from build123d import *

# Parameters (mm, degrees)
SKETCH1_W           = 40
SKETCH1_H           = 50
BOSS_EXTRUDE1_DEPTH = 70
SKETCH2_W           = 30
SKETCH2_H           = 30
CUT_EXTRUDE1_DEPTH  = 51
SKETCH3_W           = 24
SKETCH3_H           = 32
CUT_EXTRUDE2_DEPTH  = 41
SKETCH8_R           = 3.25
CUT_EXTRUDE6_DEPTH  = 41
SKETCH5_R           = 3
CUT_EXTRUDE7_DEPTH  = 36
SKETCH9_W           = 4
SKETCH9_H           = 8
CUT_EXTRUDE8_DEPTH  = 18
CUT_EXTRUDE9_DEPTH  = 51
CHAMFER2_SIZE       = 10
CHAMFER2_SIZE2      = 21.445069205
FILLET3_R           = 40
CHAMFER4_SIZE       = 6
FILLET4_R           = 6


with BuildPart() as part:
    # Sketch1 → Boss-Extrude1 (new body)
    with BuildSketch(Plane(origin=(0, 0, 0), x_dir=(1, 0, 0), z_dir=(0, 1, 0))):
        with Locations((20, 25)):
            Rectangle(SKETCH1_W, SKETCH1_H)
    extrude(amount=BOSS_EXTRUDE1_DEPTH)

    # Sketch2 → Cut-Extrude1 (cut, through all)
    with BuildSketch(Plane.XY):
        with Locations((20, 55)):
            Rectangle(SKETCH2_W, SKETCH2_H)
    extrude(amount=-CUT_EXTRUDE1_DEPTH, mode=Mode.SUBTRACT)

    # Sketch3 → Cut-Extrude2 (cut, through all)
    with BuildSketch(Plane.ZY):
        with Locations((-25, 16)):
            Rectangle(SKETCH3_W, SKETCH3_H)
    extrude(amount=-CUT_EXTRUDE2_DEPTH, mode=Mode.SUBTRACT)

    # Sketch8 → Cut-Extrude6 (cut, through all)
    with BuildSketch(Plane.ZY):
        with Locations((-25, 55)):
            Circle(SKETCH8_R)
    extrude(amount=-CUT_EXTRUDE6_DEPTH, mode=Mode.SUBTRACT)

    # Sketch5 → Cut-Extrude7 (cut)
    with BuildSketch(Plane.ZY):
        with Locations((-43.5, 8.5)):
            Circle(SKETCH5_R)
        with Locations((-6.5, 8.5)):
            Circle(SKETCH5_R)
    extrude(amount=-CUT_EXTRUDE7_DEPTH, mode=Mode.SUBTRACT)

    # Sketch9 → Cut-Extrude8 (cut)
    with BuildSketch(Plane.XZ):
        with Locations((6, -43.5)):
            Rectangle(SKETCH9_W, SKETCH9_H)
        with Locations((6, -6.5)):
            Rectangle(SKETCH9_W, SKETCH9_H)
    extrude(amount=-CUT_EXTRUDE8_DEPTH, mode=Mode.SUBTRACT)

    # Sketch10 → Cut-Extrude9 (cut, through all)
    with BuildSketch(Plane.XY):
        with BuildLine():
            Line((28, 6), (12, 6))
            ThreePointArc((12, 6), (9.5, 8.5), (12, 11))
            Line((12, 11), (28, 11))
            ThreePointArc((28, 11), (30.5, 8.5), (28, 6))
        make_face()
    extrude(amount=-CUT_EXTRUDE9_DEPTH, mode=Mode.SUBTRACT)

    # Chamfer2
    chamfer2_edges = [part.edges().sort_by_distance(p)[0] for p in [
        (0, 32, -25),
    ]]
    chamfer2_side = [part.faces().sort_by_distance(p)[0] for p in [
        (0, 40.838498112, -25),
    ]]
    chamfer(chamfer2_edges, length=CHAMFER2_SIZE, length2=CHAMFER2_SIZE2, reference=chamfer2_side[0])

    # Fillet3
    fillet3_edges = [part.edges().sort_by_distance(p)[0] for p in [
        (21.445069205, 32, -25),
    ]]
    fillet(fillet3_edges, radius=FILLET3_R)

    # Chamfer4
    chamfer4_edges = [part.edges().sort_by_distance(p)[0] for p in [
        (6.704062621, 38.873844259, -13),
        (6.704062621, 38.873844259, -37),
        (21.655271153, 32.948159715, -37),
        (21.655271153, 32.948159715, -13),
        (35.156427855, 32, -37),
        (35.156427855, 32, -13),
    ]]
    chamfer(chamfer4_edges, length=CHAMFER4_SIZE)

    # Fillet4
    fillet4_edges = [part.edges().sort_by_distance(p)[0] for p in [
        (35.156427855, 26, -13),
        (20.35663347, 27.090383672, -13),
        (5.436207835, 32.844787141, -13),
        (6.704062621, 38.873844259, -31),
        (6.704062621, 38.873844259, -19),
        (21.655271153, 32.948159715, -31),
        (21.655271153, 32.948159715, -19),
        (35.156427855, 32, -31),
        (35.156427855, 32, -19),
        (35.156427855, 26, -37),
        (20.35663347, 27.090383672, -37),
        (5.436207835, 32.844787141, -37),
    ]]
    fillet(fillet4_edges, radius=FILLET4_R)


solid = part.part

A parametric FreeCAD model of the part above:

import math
import FreeCAD as App
import Part
import Sketcher

V = App.Vector
Q = App.Units.Quantity


def edges_at(feature, points):
    """Names of the edges that pass closest to the given points."""
    edges = feature.Shape.Edges
    near = lambda p: min(range(len(edges)), key=lambda i: edges[i].distToShape(Part.Vertex(*p))[0])
    return sorted({f"Edge{near(p) + 1}" for p in points})

doc = App.newDocument("Part")
body = doc.addObject("PartDesign::Body", "Body")

# Sketch on XZ plane
sketch1 = doc.addObject("Sketcher::SketchObject", "Sketch")
body.addObject(sketch1)
sketch1.AttachmentSupport = (doc.XZ_Plane, [""])
sketch1.MapMode = "FlatFace"
sketch1.addGeometry(Part.LineSegment(V(0, -50, 0), V(0, 0, 0)), False)
sketch1.addGeometry(Part.LineSegment(V(0, 0, 0), V(40, 0, 0)), False)
sketch1.addGeometry(Part.LineSegment(V(40, 0, 0), V(40, -50, 0)), False)
sketch1.addGeometry(Part.LineSegment(V(40, -50, 0), V(0, -50, 0)), False)
sketch1.addConstraint(Sketcher.Constraint("Coincident", 0, 2, 1, 1))
sketch1.addConstraint(Sketcher.Constraint("Coincident", 1, 2, 2, 1))
sketch1.addConstraint(Sketcher.Constraint("Coincident", 2, 2, 3, 1))
sketch1.addConstraint(Sketcher.Constraint("Coincident", 3, 2, 0, 1))
sketch1.addConstraint(Sketcher.Constraint("Vertical", 0))
sketch1.addConstraint(Sketcher.Constraint("Horizontal", 1))
sketch1.addConstraint(Sketcher.Constraint("Vertical", 2))
sketch1.addConstraint(Sketcher.Constraint("Horizontal", 3))
sketch1.addConstraint(Sketcher.Constraint("Coincident", 0, 2, -1, 1))
sketch1.addConstraint(Sketcher.Constraint("DistanceX", 1, 1, 1, 2, Q("40 mm")))
sketch1.addConstraint(Sketcher.Constraint("DistanceY", 0, 1, 0, 2, Q("50 mm")))
pad1 = doc.addObject("PartDesign::Pad", "Pad")
body.addObject(pad1)
pad1.Profile = sketch1
pad1.Length = 70
pad1.Reversed = True

# Sketch on XY plane
sketch2 = doc.addObject("Sketcher::SketchObject", "Sketch001")
body.addObject(sketch2)
sketch2.AttachmentSupport = (doc.XY_Plane, [""])
sketch2.MapMode = "FlatFace"
sketch2.addGeometry(Part.LineSegment(V(5, 70, 0), V(5, 40, 0)), False)
sketch2.addGeometry(Part.LineSegment(V(5, 40, 0), V(35, 40, 0)), False)
sketch2.addGeometry(Part.LineSegment(V(35, 40, 0), V(35, 70, 0)), False)
sketch2.addGeometry(Part.LineSegment(V(35, 70, 0), V(5, 70, 0)), False)
sketch2.addConstraint(Sketcher.Constraint("Coincident", 0, 2, 1, 1))
sketch2.addConstraint(Sketcher.Constraint("Coincident", 1, 2, 2, 1))
sketch2.addConstraint(Sketcher.Constraint("Coincident", 2, 2, 3, 1))
sketch2.addConstraint(Sketcher.Constraint("Coincident", 3, 2, 0, 1))
sketch2.addConstraint(Sketcher.Constraint("Vertical", 0))
sketch2.addConstraint(Sketcher.Constraint("Horizontal", 1))
sketch2.addConstraint(Sketcher.Constraint("Vertical", 2))
sketch2.addConstraint(Sketcher.Constraint("Horizontal", 3))
sketch2.addConstraint(Sketcher.Constraint("Equal", 3, 0))
sketch2.addConstraint(Sketcher.Constraint("DistanceX", 1, 1, 1, 2, Q("30 mm")))
sketch2.addConstraint(Sketcher.Constraint("DistanceX", -1, 1, 0, 2, Q("5 mm")))
sketch2.addConstraint(Sketcher.Constraint("DistanceY", -1, 1, 0, 2, Q("40 mm")))
pocket1 = doc.addObject("PartDesign::Pocket", "Pocket")
body.addObject(pocket1)
pocket1.Profile = sketch2
pocket1.Type = "ThroughAll"

# Sketch on YZ plane
sketch3 = doc.addObject("Sketcher::SketchObject", "Sketch002")
body.addObject(sketch3)
sketch3.AttachmentSupport = (doc.YZ_Plane, [""])
sketch3.MapMode = "FlatFace"
sketch3.addGeometry(Part.LineSegment(V(32, -37, 0), V(0, -37, 0)), False)
sketch3.addGeometry(Part.LineSegment(V(0, -37, 0), V(0, -13, 0)), False)
sketch3.addGeometry(Part.LineSegment(V(0, -13, 0), V(32, -13, 0)), False)
sketch3.addGeometry(Part.LineSegment(V(32, -13, 0), V(32, -37, 0)), False)
sketch3.addConstraint(Sketcher.Constraint("Coincident", 0, 2, 1, 1))
sketch3.addConstraint(Sketcher.Constraint("Coincident", 1, 2, 2, 1))
sketch3.addConstraint(Sketcher.Constraint("Coincident", 2, 2, 3, 1))
sketch3.addConstraint(Sketcher.Constraint("Coincident", 3, 2, 0, 1))
sketch3.addConstraint(Sketcher.Constraint("Horizontal", 0))
sketch3.addConstraint(Sketcher.Constraint("Vertical", 1))
sketch3.addConstraint(Sketcher.Constraint("Horizontal", 2))
sketch3.addConstraint(Sketcher.Constraint("Vertical", 3))
sketch3.addConstraint(Sketcher.Constraint("PointOnObject", 0, 2, -2))
sketch3.addConstraint(Sketcher.Constraint("DistanceX", 0, 2, 0, 1, Q("32 mm")))
sketch3.addConstraint(Sketcher.Constraint("DistanceY", 1, 1, 1, 2, Q("24 mm")))
sketch3.addConstraint(Sketcher.Constraint("DistanceY", 0, 2, -1, 1, Q("37 mm")))
pocket2 = doc.addObject("PartDesign::Pocket", "Pocket001")
body.addObject(pocket2)
pocket2.Profile = sketch3
pocket2.Type = "ThroughAll"
pocket2.Reversed = True

# Sketch on YZ plane
sketch4 = doc.addObject("Sketcher::SketchObject", "Sketch003")
body.addObject(sketch4)
sketch4.AttachmentSupport = (doc.YZ_Plane, [""])
sketch4.MapMode = "FlatFace"
sketch4.addGeometry(Part.Circle(V(55, -25, 0), V(0, 0, 1), 3.2), False)
sketch4.addConstraint(Sketcher.Constraint("Diameter", 0, Q("6.5 mm")))
sketch4.addConstraint(Sketcher.Constraint("DistanceX", -1, 1, 0, 3, Q("55 mm")))
sketch4.addConstraint(Sketcher.Constraint("DistanceY", 0, 3, -1, 1, Q("25 mm")))
pocket3 = doc.addObject("PartDesign::Pocket", "Pocket002")
body.addObject(pocket3)
pocket3.Profile = sketch4
pocket3.Type = "ThroughAll"
pocket3.Reversed = True

# Sketch on YZ plane
sketch5 = doc.addObject("Sketcher::SketchObject", "Sketch004")
body.addObject(sketch5)
sketch5.AttachmentSupport = (doc.YZ_Plane, [""])
sketch5.MapMode = "FlatFace"
sketch5.addGeometry(Part.Circle(V(8.5, -43.5, 0), V(0, 0, 1), 3), False)
sketch5.addGeometry(Part.Circle(V(8.5, -6.5, 0), V(0, 0, 1), 3), False)
sketch5.addConstraint(Sketcher.Constraint("Equal", 0, 1))
sketch5.addConstraint(Sketcher.Constraint("Vertical", 0, 3, 1, 3))
sketch5.addConstraint(Sketcher.Constraint("Diameter", 0, Q("6 mm")))
sketch5.addConstraint(Sketcher.Constraint("DistanceY", 0, 3, 1, 3, Q("37 mm")))
sketch5.addConstraint(Sketcher.Constraint("DistanceX", -1, 1, 0, 3, Q("8.5 mm")))
sketch5.addConstraint(Sketcher.Constraint("DistanceY", 0, 3, -1, 1, Q("43.5 mm")))
pocket4 = doc.addObject("PartDesign::Pocket", "Pocket003")
body.addObject(pocket4)
pocket4.Profile = sketch5
pocket4.Length = 36
pocket4.Reversed = True

# Sketch on XZ plane
sketch6 = doc.addObject("Sketcher::SketchObject", "Sketch005")
body.addObject(sketch6)
sketch6.AttachmentSupport = (doc.XZ_Plane, [""])
sketch6.MapMode = "FlatFace"
sketch6.addGeometry(Part.LineSegment(V(4, -39.5, 0), V(4, -47.5, 0)), False)
sketch6.addGeometry(Part.LineSegment(V(4, -47.5, 0), V(8, -47.5, 0)), False)
sketch6.addGeometry(Part.LineSegment(V(8, -47.5, 0), V(8, -39.5, 0)), False)
sketch6.addGeometry(Part.LineSegment(V(8, -39.5, 0), V(4, -39.5, 0)), False)
sketch6.addGeometry(Part.LineSegment(V(4, -2.5, 0), V(4, -10.5, 0)), False)
sketch6.addGeometry(Part.LineSegment(V(4, -10.5, 0), V(8, -10.5, 0)), False)
sketch6.addGeometry(Part.LineSegment(V(8, -10.5, 0), V(8, -2.5, 0)), False)
sketch6.addGeometry(Part.LineSegment(V(8, -2.5, 0), V(4, -2.5, 0)), False)
sketch6.addConstraint(Sketcher.Constraint("Coincident", 0, 2, 1, 1))
sketch6.addConstraint(Sketcher.Constraint("Coincident", 1, 2, 2, 1))
sketch6.addConstraint(Sketcher.Constraint("Coincident", 2, 2, 3, 1))
sketch6.addConstraint(Sketcher.Constraint("Coincident", 3, 2, 0, 1))
sketch6.addConstraint(Sketcher.Constraint("Coincident", 4, 2, 5, 1))
sketch6.addConstraint(Sketcher.Constraint("Coincident", 5, 2, 6, 1))
sketch6.addConstraint(Sketcher.Constraint("Coincident", 6, 2, 7, 1))
sketch6.addConstraint(Sketcher.Constraint("Coincident", 7, 2, 4, 1))
sketch6.addConstraint(Sketcher.Constraint("Vertical", 0))
sketch6.addConstraint(Sketcher.Constraint("Horizontal", 1))
sketch6.addConstraint(Sketcher.Constraint("Vertical", 2))
sketch6.addConstraint(Sketcher.Constraint("Horizontal", 3))
sketch6.addConstraint(Sketcher.Constraint("Vertical", 4))
sketch6.addConstraint(Sketcher.Constraint("Horizontal", 5))
sketch6.addConstraint(Sketcher.Constraint("Vertical", 6))
sketch6.addConstraint(Sketcher.Constraint("Horizontal", 7))
sketch6.addConstraint(Sketcher.Constraint("Vertical", 3, 2, 4, 2))
sketch6.addConstraint(Sketcher.Constraint("Vertical", 2, 2, 5, 2))
sketch6.addConstraint(Sketcher.Constraint("Equal", 2, 4))
sketch6.addConstraint(Sketcher.Constraint("DistanceX", 1, 1, 1, 2, Q("4 mm")))
sketch6.addConstraint(Sketcher.Constraint("DistanceY", 0, 2, 0, 1, Q("8 mm")))
sketch6.addConstraint(Sketcher.Constraint("DistanceX", -1, 1, 0, 2, Q("4 mm")))
sketch6.addConstraint(Sketcher.Constraint("DistanceY", 3, 2, 4, 2, Q("29 mm")))
sketch6.addConstraint(Sketcher.Constraint("DistanceY", 0, 2, -1, 1, Q("47.5 mm")))
pocket5 = doc.addObject("PartDesign::Pocket", "Pocket004")
body.addObject(pocket5)
pocket5.Profile = sketch6
pocket5.Length = 18

# Sketch on XY plane
sketch7 = doc.addObject("Sketcher::SketchObject", "Sketch006")
body.addObject(sketch7)
sketch7.AttachmentSupport = (doc.XY_Plane, [""])
sketch7.MapMode = "FlatFace"
sketch7.addGeometry(Part.LineSegment(V(12, 6, 0), V(28, 6, 0)), False)
sketch7.addGeometry(Part.ArcOfCircle(Part.Circle(V(28, 8.5, 0), V(0, 0, 1), 2.5), math.radians(-90), math.radians(90)), False)
sketch7.addGeometry(Part.LineSegment(V(28, 11, 0), V(12, 11, 0)), False)
sketch7.addGeometry(Part.ArcOfCircle(Part.Circle(V(12, 8.5, 0), V(0, 0, 1), 2.5), math.radians(90), math.radians(270)), False)
sketch7.addConstraint(Sketcher.Constraint("Tangent", 0, 2, 1, 1))
sketch7.addConstraint(Sketcher.Constraint("Tangent", 1, 2, 2, 1))
sketch7.addConstraint(Sketcher.Constraint("Tangent", 2, 2, 3, 1))
sketch7.addConstraint(Sketcher.Constraint("Tangent", 3, 2, 0, 1))
sketch7.addConstraint(Sketcher.Constraint("Horizontal", 0))
sketch7.addConstraint(Sketcher.Constraint("Horizontal", 2))
sketch7.addConstraint(Sketcher.Constraint("Radius", 1, Q("2.5 mm")))
sketch7.addConstraint(Sketcher.Constraint("DistanceX", 0, 1, 0, 2, Q("16 mm")))
sketch7.addConstraint(Sketcher.Constraint("DistanceX", -1, 1, 1, 3, Q("28 mm")))
sketch7.addConstraint(Sketcher.Constraint("DistanceY", -1, 1, 0, 2, Q("6 mm")))
pocket6 = doc.addObject("PartDesign::Pocket", "Pocket005")
body.addObject(pocket6)
pocket6.Profile = sketch7
pocket6.Type = "ThroughAll"
doc.recompute()

chamfer = doc.addObject("PartDesign::Chamfer", "Chamfer")
body.addObject(chamfer)
chamfer.Base = (pocket6, edges_at(pocket6, [(0, 32, -25)]))
chamfer.ChamferType = "Two distances"
chamfer.Size = 10
chamfer.Size2 = 21.445069
doc.recompute()

fillet = doc.addObject("PartDesign::Fillet", "Fillet")
body.addObject(fillet)
fillet.Base = (chamfer, edges_at(chamfer, [(21.445, 32, -25)]))
fillet.Radius = 40
doc.recompute()

chamfer2 = doc.addObject("PartDesign::Chamfer", "Chamfer001")
body.addObject(chamfer2)
chamfer2.Base = (fillet, edges_at(fillet, [
    (6.704, 38.874, -13),
    (6.704, 38.874, -37),
    (21.655, 32.948, -37),
    (21.655, 32.948, -13),
    (35.156, 32, -37),
    (35.156, 32, -13),
]))
chamfer2.Size = 6
doc.recompute()

fillet2 = doc.addObject("PartDesign::Fillet", "Fillet001")
body.addObject(fillet2)
fillet2.Base = (chamfer2, edges_at(chamfer2, [
    (35.156, 26, -13),
    (20.357, 27.09, -13),
    (5.436, 32.845, -13),
    (6.704, 38.874, -31),
    (6.704, 38.874, -19),
    (21.655, 32.948, -31),
    (21.655, 32.948, -19),
    (35.156, 32, -31),
    (35.156, 32, -19),
    (35.156, 26, -37),
    (20.357, 27.09, -37),
    (5.436, 32.845, -37),
]))
fillet2.Radius = 6

doc.recompute()
